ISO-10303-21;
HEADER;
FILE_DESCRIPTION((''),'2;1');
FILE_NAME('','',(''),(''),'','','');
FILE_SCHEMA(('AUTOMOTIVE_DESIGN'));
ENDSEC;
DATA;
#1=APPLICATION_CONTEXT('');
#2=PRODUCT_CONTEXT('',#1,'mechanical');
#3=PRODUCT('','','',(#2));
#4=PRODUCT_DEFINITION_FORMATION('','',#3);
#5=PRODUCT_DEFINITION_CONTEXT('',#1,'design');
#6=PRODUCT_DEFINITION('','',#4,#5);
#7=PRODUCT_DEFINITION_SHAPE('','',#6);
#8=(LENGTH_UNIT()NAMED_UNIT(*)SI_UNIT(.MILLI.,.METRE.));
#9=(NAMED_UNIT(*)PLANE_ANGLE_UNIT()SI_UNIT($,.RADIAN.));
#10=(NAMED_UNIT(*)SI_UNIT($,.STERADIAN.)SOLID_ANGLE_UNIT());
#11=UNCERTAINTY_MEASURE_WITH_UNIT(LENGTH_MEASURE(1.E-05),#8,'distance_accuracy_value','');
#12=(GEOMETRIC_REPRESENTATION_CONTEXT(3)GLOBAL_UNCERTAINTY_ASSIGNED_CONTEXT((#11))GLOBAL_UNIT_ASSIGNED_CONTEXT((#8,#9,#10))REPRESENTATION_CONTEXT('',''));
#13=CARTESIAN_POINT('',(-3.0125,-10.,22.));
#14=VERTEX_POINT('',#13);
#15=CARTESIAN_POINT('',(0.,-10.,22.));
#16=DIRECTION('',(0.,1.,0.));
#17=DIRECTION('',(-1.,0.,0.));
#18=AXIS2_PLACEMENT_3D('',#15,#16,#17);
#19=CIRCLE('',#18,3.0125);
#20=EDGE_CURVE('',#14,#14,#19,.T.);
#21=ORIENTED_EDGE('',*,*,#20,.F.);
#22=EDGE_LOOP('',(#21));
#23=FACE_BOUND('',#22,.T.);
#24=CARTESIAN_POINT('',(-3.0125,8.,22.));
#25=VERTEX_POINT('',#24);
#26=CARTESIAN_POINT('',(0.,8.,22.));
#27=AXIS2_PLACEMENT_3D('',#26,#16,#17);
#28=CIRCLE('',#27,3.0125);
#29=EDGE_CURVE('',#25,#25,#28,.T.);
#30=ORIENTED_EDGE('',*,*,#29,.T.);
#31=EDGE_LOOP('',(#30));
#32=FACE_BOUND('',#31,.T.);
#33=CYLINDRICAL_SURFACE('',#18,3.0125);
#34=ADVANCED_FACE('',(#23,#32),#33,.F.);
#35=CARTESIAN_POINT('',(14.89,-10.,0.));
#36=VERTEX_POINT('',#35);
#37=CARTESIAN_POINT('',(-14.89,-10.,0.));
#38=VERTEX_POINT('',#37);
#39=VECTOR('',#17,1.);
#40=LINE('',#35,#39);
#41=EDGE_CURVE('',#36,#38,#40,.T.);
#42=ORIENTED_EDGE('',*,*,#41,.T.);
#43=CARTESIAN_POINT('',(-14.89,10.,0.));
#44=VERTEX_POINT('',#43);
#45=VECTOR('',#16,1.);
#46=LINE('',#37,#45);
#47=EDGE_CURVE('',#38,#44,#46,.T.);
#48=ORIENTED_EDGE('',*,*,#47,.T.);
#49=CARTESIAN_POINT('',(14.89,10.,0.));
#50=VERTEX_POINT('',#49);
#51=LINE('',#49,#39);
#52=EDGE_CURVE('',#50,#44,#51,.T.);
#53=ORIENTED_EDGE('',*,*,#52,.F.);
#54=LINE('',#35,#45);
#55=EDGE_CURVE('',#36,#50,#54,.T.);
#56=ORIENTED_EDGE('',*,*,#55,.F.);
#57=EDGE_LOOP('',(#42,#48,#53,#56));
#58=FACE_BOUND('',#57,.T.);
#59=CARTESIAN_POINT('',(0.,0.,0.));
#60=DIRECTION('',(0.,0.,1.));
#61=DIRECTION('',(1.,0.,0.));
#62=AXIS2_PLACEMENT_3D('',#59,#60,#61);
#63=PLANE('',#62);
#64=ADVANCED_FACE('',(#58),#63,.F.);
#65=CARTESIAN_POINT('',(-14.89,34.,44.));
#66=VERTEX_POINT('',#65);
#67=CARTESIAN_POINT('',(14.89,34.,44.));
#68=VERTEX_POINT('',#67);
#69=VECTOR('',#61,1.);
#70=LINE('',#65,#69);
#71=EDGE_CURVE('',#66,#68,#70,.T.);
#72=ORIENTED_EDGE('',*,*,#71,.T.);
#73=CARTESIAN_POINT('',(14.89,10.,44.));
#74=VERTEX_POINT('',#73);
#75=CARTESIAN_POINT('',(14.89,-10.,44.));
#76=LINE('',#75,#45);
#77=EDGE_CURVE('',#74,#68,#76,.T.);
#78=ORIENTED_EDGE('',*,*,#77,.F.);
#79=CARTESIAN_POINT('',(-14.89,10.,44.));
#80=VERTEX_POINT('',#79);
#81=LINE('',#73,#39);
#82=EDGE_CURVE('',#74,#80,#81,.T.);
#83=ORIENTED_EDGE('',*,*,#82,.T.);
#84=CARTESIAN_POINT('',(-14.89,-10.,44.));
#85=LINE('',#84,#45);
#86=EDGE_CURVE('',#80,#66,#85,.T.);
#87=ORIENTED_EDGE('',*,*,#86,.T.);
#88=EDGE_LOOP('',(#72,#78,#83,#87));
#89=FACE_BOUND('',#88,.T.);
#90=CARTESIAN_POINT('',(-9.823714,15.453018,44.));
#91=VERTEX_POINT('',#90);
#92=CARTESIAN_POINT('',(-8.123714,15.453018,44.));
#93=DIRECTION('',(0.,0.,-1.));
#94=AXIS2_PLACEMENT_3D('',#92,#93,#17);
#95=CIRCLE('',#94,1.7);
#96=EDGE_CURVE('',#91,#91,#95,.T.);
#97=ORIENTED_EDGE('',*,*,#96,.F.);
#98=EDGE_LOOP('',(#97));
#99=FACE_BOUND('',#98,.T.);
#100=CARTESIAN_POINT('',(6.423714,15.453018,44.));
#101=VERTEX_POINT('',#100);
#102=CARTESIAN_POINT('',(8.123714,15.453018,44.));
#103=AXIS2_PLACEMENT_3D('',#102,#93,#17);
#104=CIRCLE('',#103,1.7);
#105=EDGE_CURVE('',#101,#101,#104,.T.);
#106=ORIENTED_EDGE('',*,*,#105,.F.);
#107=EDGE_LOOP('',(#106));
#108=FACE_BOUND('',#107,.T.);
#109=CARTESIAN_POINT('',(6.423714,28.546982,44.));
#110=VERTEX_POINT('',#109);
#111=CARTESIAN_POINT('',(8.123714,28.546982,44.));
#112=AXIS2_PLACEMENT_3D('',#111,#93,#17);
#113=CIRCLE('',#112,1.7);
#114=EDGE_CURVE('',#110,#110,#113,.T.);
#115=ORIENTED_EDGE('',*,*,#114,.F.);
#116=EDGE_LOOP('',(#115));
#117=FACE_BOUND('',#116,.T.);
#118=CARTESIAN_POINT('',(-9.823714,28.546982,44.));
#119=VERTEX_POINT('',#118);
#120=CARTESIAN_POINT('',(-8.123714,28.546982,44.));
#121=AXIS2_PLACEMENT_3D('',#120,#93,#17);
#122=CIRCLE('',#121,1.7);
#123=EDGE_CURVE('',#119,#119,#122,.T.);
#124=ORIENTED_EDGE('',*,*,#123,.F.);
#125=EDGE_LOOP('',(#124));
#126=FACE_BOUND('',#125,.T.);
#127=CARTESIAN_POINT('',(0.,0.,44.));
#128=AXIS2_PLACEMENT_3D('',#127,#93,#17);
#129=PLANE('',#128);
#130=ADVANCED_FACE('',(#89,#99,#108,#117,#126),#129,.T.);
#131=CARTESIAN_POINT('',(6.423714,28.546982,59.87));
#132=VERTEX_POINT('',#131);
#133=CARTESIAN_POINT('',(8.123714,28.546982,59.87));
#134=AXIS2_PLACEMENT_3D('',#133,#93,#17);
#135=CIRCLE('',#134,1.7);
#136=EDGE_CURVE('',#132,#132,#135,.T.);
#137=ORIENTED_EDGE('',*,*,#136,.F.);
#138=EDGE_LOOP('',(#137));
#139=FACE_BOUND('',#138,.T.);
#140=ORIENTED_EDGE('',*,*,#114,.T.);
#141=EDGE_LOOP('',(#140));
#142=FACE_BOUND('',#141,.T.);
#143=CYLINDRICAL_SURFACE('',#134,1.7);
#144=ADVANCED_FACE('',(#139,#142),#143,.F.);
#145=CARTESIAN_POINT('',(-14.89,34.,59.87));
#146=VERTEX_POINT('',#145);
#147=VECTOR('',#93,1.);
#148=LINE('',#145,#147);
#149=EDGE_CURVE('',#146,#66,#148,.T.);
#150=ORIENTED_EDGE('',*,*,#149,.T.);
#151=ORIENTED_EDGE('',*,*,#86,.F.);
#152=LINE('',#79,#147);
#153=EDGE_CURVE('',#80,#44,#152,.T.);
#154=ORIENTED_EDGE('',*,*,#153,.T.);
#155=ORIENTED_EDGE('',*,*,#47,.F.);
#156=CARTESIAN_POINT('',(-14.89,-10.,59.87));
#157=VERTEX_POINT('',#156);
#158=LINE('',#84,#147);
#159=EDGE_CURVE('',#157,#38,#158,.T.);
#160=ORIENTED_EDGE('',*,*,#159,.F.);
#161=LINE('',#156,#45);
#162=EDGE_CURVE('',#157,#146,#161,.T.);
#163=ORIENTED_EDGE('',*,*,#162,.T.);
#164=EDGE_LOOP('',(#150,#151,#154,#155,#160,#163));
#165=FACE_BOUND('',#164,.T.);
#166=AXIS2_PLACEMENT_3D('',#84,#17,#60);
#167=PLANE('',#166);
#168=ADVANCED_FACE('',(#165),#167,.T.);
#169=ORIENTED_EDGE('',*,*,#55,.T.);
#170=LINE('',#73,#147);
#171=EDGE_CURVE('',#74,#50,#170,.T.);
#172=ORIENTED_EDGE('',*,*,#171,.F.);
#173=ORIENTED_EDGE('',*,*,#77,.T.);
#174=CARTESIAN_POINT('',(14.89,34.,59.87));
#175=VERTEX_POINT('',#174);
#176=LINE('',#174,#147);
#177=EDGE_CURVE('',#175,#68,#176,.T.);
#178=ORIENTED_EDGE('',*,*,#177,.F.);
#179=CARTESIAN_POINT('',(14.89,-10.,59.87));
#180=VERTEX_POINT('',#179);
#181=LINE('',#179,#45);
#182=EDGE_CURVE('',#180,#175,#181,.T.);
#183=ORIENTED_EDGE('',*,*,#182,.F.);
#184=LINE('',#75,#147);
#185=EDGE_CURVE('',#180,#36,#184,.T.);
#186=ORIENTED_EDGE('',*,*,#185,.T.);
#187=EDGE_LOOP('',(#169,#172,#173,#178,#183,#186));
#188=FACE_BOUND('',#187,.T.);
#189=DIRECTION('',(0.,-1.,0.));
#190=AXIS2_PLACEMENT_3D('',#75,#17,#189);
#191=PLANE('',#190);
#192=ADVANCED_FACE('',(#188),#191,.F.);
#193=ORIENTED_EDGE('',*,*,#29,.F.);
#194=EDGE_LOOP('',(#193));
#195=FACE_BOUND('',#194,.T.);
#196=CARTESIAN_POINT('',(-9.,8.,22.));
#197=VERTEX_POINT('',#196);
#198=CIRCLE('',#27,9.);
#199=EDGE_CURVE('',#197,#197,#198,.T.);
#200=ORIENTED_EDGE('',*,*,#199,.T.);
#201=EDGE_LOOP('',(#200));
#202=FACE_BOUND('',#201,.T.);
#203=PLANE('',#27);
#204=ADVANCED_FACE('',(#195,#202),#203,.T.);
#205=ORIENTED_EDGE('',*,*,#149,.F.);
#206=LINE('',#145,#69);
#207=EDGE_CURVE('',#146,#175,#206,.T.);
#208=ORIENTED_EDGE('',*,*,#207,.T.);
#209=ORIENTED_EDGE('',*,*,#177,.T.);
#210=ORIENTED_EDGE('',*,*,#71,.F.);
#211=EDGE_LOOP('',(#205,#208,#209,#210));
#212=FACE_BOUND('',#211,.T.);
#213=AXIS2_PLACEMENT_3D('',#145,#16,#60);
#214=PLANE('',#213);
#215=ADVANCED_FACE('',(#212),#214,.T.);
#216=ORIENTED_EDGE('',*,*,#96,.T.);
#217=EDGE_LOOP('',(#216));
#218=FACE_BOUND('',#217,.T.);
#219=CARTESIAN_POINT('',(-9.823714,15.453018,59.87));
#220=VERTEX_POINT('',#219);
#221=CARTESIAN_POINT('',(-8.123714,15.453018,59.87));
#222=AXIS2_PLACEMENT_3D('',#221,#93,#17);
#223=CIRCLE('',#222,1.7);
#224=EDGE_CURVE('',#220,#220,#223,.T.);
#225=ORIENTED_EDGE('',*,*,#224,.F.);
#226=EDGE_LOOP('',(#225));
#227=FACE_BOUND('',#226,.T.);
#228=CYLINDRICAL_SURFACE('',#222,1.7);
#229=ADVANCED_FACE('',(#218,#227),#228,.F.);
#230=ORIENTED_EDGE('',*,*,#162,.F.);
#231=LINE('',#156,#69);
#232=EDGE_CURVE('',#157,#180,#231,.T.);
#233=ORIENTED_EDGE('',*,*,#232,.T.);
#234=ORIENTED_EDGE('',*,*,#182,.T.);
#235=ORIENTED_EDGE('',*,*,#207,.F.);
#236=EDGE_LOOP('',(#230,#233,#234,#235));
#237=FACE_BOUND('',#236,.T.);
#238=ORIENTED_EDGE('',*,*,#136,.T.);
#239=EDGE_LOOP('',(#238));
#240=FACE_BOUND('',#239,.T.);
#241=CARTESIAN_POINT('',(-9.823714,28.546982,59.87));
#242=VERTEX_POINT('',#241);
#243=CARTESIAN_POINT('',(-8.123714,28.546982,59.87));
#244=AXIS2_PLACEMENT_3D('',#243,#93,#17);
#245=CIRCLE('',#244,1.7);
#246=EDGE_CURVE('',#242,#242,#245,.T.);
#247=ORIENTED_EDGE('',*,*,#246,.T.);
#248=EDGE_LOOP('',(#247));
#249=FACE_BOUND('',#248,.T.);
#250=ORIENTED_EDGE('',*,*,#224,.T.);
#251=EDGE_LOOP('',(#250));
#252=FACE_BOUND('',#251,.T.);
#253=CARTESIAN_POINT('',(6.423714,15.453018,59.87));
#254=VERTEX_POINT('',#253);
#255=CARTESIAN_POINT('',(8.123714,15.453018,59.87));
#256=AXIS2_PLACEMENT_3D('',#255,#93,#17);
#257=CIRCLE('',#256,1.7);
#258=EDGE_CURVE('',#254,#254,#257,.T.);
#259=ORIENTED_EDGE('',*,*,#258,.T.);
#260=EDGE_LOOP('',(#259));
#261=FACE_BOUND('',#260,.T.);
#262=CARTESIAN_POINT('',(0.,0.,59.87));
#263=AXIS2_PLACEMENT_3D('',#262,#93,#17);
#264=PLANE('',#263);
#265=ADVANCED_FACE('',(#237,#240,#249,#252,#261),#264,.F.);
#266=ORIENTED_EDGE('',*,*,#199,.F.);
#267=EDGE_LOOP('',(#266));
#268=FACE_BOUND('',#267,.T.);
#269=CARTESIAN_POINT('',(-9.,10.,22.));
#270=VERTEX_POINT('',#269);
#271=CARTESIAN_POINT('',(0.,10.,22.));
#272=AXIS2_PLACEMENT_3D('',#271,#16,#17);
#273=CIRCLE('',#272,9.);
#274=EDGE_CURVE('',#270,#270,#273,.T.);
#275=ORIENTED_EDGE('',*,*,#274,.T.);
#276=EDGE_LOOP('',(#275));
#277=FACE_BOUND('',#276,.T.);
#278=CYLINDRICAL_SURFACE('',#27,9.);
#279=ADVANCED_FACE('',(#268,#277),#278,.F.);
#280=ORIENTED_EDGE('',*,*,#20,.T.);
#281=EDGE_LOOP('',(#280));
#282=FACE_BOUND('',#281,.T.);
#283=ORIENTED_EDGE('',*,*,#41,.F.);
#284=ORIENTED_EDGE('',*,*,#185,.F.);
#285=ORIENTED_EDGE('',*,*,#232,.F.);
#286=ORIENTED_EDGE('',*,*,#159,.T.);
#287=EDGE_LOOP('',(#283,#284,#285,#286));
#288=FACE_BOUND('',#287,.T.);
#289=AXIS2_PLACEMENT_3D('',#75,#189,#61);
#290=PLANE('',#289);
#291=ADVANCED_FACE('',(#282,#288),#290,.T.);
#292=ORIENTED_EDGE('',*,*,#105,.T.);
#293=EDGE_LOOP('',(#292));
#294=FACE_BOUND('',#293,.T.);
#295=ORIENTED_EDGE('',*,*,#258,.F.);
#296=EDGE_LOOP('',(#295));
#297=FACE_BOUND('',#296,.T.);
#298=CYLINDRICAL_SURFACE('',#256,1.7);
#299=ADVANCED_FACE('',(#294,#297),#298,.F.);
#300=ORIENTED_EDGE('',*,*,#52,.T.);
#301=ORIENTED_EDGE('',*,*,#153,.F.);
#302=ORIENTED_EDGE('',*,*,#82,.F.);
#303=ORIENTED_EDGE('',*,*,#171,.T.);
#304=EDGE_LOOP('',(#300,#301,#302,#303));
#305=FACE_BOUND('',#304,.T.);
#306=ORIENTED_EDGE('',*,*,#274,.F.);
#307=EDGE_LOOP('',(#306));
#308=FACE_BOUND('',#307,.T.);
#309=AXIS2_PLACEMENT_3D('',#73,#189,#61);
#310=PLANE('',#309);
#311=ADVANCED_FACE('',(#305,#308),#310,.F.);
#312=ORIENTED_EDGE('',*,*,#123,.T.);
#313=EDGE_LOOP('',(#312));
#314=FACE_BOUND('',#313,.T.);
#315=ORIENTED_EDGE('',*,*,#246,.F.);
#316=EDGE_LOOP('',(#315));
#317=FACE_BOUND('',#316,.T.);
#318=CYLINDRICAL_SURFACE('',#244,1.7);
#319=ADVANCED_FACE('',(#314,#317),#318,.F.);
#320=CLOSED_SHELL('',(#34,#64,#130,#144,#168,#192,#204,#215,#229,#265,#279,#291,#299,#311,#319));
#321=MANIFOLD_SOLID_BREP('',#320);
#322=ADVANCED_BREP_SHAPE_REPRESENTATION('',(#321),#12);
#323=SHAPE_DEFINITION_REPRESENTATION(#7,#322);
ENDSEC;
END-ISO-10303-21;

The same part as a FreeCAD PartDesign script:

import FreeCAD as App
import Part
import Sketcher
Q = App.Units.Quantity


def add_polygon(sketch, points):
    """Adds a closed chain of lines whose ends are joined by coincident constraints."""
    first, n = sketch.GeometryCount, len(points)
    for a, b in zip(points, points[1:] + points[:1]):
        sketch.addGeometry(Part.LineSegment(App.Vector(*a, 0), App.Vector(*b, 0)), False)
    for i in range(n):
        sketch.addConstraint(Sketcher.Constraint("Coincident", first + i, 2, first + (i + 1) % n, 1))

doc = App.newDocument("Part")
params = doc.addObject("Spreadsheet::Sheet", "Params")
for row, (alias, value) in enumerate([
    ("sketch1_height", "20 mm"),
    ("sketch1_width", "29.78 mm"),
    ("pad1_length", "44 mm"),
    ("sketch2_height", "44 mm"),
    ("sketch2_width", "29.78 mm"),
    ("pad2_length", "15.87 mm"),
    ("sketch3_diameter", "18 mm"),
    ("pocket1_length", "2 mm"),
    ("sketch5_diameter", "3.4 mm"),
], start=1):
    params.set(f"A{row}", alias)
    params.set(f"B{row}", "=" + value)
    params.setAlias(f"B{row}", alias)

body = doc.addObject("PartDesign::Body", "Body")

# Sketch on XY plane
sketch1 = body.newObject("Sketcher::SketchObject", "Sketch")
sketch1.AttachmentSupport = (doc.getObject("XY_Plane"), [""])
sketch1.MapMode = "FlatFace"
add_polygon(sketch1, [(-15, 10), (-15, -10), (15, -10), (15, 10)])  # lines 0-3
sketch1.addConstraint(Sketcher.Constraint("Vertical", 0))
sketch1.addConstraint(Sketcher.Constraint("Horizontal", 1))
sketch1.addConstraint(Sketcher.Constraint("Vertical", 2))
sketch1.addConstraint(Sketcher.Constraint("Horizontal", 3))
sketch1.addConstraint(Sketcher.Constraint("Symmetric", 0, 2, 2, 2, -1, 1))
sketch1.addConstraint(Sketcher.Constraint("DistanceY", 0, 2, 0, 1, Q("20 mm")))
sketch1.addConstraint(Sketcher.Constraint("DistanceX", 1, 1, 1, 2, Q("29.78 mm")))
sketch1.setExpression("Constraints[9]", "Params.sketch1_height")
sketch1.setExpression("Constraints[10]", "Params.sketch1_width")
pad1 = body.newObject("PartDesign::Pad", "Pad")
pad1.Profile = sketch1
pad1.setExpression("Length", "Params.pad1_length")

# Sketch on XY plane
sketch2 = body.newObject("Sketcher::SketchObject", "Sketch001")
sketch2.AttachmentSupport = (doc.getObject("XY_Plane"), [""])
sketch2.MapMode = "FlatFace"
sketch2.AttachmentOffset = App.Placement(App.Vector(0, 0, 44), App.Rotation())
add_polygon(sketch2, [(-15, 34), (-15, -10), (15, -10), (15, 34)])  # lines 0-3
sketch2.addConstraint(Sketcher.Constraint("Vertical", 0))
sketch2.addConstraint(Sketcher.Constraint("Horizontal", 1))
sketch2.addConstraint(Sketcher.Constraint("Vertical", 2))
sketch2.addConstraint(Sketcher.Constraint("Horizontal", 3))
sketch2.addConstraint(Sketcher.Constraint("DistanceY", 0, 2, 0, 1, Q("44 mm")))
sketch2.addConstraint(Sketcher.Constraint("DistanceY", 0, 2, -1, 1, Q("10 mm")))
sketch2.addConstraint(Sketcher.Constraint("DistanceX", 1, 1, 1, 2, Q("29.78 mm")))
sketch2.addConstraint(Sketcher.Constraint("DistanceX", 0, 2, -1, 1, Q("14.89 mm")))
sketch2.setExpression("Constraints[8]", "Params.sketch2_height")
sketch2.setExpression("Constraints[10]", "Params.sketch2_width")
pad2 = body.newObject("PartDesign::Pad", "Pad001")
pad2.Profile = sketch2
pad2.setExpression("Length", "Params.pad2_length")

# Sketch on XZ plane
sketch3 = body.newObject("Sketcher::SketchObject", "Sketch002")
sketch3.AttachmentSupport = (doc.getObject("XZ_Plane"), [""])
sketch3.MapMode = "FlatFace"
sketch3.AttachmentOffset = App.Placement(App.Vector(0, 0, -10), App.Rotation())
sketch3.addGeometry(Part.Circle(App.Vector(0, 22, 0), App.Vector(0, 0, 1), 9), False)
sketch3.addConstraint(Sketcher.Constraint("PointOnObject", 0, 3, -2))
sketch3.addConstraint(Sketcher.Constraint("Diameter", 0, Q("18 mm")))
sketch3.addConstraint(Sketcher.Constraint("DistanceY", -1, 1, 0, 3, Q("22 mm")))
sketch3.setExpression("Constraints[1]", "Params.sketch3_diameter")
pocket1 = body.newObject("PartDesign::Pocket", "Pocket")
pocket1.Profile = sketch3
pocket1.setExpression("Length", "Params.pocket1_length")
pocket1.Reversed = True

# Sketch on XZ plane
sketch4 = body.newObject("Sketcher::SketchObject", "Sketch003")
sketch4.AttachmentSupport = (doc.getObject("XZ_Plane"), [""])
sketch4.MapMode = "FlatFace"
sketch4.AttachmentOffset = App.Placement(App.Vector(0, 0, -8), App.Rotation())
sketch4.addGeometry(Part.Circle(App.Vector(0, 22, 0), App.Vector(0, 0, 1), 3), False)
sketch4.addConstraint(Sketcher.Constraint("PointOnObject", 0, 3, -2))
sketch4.addConstraint(Sketcher.Constraint("Diameter", 0, Q("6.025 mm")))
sketch4.addConstraint(Sketcher.Constraint("DistanceY", -1, 1, 0, 3, Q("22 mm")))
pocket2 = body.newObject("PartDesign::Pocket", "Pocket001")
pocket2.Profile = sketch4
pocket2.Type = "ThroughAll"
pocket2.Reversed = True

# Sketch on XY plane
sketch5 = body.newObject("Sketcher::SketchObject", "Sketch004")
sketch5.AttachmentSupport = (doc.getObject("XY_Plane"), [""])
sketch5.MapMode = "FlatFace"
sketch5.AttachmentOffset = App.Placement(App.Vector(0, 0, 44), App.Rotation())
sketch5.addGeometry(Part.Circle(App.Vector(8.1, 28.5, 0), App.Vector(0, 0, 1), 1.7), False)
sketch5.addGeometry(Part.Circle(App.Vector(-8.1, 28.5, 0), App.Vector(0, 0, 1), 1.7), False)
sketch5.addGeometry(Part.Circle(App.Vector(8.1, 15.5, 0), App.Vector(0, 0, 1), 1.7), False)
sketch5.addGeometry(Part.Circle(App.Vector(-8.1, 15.5, 0), App.Vector(0, 0, 1), 1.7), False)
sketch5.addConstraint(Sketcher.Constraint("Equal", 0, 1))
sketch5.addConstraint(Sketcher.Constraint("Equal", 1, 2))
sketch5.addConstraint(Sketcher.Constraint("Equal", 2, 3))
sketch5.addConstraint(Sketcher.Constraint("Symmetric", 0, 3, 1, 3, -2))
sketch5.addConstraint(Sketcher.Constraint("Symmetric", 2, 3, 3, 3, -2))
sketch5.addConstraint(Sketcher.Constraint("Vertical", 0, 3, 2, 3))
sketch5.addConstraint(Sketcher.Constraint("Diameter", 0, Q("3.4 mm")))
sketch5.addConstraint(Sketcher.Constraint("DistanceX", -1, 1, 0, 3, Q("8.123714 mm")))
sketch5.addConstraint(Sketcher.Constraint("DistanceY", -1, 1, 0, 3, Q("28.546982 mm")))
sketch5.addConstraint(Sketcher.Constraint("DistanceY", -1, 1, 2, 3, Q("15.453018 mm")))
sketch5.setExpression("Constraints[6]", "Params.sketch5_diameter")
pocket3 = body.newObject("PartDesign::Pocket", "Pocket002")
pocket3.Profile = sketch5
pocket3.Type = "ThroughAll"
pocket3.Reversed = True

doc.recompute()
